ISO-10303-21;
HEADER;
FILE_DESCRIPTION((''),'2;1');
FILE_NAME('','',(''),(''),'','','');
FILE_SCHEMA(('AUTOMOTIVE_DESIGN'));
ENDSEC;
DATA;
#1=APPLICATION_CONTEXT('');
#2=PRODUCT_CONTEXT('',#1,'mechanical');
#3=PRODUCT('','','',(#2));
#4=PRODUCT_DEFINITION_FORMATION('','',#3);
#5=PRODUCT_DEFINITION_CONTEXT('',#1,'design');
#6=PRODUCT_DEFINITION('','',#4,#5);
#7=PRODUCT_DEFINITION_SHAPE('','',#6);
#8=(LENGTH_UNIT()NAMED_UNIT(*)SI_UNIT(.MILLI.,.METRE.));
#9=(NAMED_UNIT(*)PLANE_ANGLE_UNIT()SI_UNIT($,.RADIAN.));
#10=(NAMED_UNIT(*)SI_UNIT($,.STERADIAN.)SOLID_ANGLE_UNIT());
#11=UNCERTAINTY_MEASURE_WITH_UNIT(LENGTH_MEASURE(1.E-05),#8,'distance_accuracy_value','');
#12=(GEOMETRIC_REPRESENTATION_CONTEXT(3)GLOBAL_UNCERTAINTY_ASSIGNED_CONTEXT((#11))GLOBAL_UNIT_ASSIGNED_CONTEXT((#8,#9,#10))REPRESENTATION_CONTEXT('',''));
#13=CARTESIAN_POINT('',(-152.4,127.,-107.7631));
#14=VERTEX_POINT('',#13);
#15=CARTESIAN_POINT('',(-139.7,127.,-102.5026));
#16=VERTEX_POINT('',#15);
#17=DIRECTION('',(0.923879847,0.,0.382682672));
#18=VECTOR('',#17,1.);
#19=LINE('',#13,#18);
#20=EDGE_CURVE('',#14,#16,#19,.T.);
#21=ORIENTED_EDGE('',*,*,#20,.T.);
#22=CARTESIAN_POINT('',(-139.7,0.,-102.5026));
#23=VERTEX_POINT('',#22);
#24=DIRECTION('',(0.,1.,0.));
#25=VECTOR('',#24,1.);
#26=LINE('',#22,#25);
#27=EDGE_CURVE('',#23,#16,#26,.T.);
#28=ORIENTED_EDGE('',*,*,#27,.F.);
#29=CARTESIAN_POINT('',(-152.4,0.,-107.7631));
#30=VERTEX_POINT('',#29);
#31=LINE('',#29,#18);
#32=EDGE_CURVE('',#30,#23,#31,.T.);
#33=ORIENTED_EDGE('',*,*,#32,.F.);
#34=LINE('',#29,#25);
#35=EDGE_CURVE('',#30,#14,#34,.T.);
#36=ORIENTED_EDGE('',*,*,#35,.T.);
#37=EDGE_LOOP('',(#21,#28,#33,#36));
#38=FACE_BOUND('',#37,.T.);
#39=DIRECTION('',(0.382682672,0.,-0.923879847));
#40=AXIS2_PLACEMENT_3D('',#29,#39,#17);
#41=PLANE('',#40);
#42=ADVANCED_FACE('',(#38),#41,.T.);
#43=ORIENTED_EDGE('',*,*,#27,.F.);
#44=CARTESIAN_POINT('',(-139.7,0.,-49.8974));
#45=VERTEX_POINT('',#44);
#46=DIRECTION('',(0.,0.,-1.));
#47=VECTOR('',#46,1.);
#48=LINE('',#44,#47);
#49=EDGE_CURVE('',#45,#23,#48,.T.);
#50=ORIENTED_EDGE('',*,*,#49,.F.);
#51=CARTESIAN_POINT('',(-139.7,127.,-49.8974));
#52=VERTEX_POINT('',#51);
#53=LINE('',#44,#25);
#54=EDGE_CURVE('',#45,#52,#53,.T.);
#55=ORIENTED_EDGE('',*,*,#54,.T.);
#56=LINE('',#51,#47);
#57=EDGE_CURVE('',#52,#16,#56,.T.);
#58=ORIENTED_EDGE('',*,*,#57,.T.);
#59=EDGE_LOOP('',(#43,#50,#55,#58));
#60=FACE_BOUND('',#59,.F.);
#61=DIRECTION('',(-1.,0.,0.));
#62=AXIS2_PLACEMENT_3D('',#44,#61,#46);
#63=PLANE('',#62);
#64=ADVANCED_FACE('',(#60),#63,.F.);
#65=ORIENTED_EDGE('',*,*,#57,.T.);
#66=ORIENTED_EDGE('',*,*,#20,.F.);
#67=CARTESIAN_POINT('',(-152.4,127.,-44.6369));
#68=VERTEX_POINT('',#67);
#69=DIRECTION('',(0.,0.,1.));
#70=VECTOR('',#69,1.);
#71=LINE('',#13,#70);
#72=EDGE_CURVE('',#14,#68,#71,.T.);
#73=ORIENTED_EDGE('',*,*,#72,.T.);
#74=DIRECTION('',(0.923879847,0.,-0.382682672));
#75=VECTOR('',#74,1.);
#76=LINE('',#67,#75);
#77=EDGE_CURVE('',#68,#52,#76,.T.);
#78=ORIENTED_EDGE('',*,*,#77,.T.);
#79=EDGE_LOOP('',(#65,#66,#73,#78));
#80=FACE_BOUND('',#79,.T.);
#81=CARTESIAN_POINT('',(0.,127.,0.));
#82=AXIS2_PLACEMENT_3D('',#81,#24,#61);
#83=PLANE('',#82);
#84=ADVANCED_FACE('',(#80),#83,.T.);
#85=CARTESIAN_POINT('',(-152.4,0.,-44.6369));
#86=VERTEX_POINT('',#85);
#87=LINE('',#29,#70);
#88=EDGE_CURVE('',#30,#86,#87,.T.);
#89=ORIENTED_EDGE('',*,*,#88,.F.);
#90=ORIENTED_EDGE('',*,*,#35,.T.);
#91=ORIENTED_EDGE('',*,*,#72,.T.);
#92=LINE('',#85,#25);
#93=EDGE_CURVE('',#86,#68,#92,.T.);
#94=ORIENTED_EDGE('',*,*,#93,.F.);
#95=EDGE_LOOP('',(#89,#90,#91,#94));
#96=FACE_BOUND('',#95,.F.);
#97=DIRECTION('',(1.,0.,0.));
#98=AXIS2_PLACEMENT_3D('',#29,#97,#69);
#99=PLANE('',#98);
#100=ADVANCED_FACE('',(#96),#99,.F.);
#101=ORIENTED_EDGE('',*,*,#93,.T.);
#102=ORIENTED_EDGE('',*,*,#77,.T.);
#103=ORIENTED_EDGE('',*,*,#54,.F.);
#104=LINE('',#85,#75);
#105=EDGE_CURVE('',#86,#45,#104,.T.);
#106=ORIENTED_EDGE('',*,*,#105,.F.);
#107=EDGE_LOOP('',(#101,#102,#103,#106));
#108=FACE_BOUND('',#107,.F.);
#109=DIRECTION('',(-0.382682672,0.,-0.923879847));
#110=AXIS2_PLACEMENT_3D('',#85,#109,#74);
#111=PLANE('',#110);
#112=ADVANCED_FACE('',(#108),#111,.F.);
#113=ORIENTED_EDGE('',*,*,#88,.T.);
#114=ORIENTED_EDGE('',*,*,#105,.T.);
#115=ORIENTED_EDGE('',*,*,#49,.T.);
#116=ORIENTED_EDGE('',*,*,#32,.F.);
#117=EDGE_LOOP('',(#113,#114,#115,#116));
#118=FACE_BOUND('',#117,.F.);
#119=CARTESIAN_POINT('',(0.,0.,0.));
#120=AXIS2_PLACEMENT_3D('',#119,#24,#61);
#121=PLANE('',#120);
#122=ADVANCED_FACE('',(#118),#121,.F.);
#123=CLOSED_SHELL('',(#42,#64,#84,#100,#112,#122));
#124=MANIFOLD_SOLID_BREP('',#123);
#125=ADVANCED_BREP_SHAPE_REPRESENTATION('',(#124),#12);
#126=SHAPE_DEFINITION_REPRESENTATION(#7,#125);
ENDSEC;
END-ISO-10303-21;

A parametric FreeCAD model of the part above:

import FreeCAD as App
import Part
import Sketcher
Q = App.Units.Quantity

doc = App.newDocument("Part")
body = doc.addObject("PartDesign::Body", "Body")

sketch1 = body.newObject("Sketcher::SketchObject", "Sketch")
sketch1.AttachmentSupport = (doc.getObject("XZ_Plane"), [""])
sketch1.MapMode = "FlatFace"
sketch1.addGeometry([
    Part.LineSegment(App.Vector(-152.4, -107.7631, 0), App.Vector(-152.4, -44.6369, 0)),
    Part.LineSegment(App.Vector(-152.4, -44.6369, 0), App.Vector(-139.7, -49.8974, 0)),
    Part.LineSegment(App.Vector(-139.7, -49.8974, 0), App.Vector(-139.7, -102.5026, 0)),
    Part.LineSegment(App.Vector(-139.7, -102.5026, 0), App.Vector(-152.4, -107.7631, 0)),
], False)
sketch1.addConstraint([
    Sketcher.Constraint("Coincident", 0, 2, 1, 1),
    Sketcher.Constraint("Coincident", 1, 2, 2, 1),
    Sketcher.Constraint("Coincident", 2, 2, 3, 1),
    Sketcher.Constraint("Coincident", 3, 2, 0, 1),
    Sketcher.Constraint("Vertical", 0),
    Sketcher.Constraint("Vertical", 2),
    Sketcher.Constraint("Equal", 1, 3),
    Sketcher.Constraint("DistanceX", 0, 2, -1, 1, Q("6 in")),
    Sketcher.Constraint("DistanceX", 0, 2, 1, 2, Q("0.5 in")),
    Sketcher.Constraint("DistanceY", 0, 1, 0, 2, Q("63.1262 mm")),
    Sketcher.Constraint("DistanceY", 2, 2, 2, 1, Q("52.6052 mm")),
    Sketcher.Constraint("DistanceY", 0, 2, -1, 1, Q("44.637 mm")),
])
pad1 = body.newObject("PartDesign::Pad", "Pad")
pad1.Profile = sketch1
pad1.Length = Q("5 in")
pad1.Reversed = True

doc.recompute()
